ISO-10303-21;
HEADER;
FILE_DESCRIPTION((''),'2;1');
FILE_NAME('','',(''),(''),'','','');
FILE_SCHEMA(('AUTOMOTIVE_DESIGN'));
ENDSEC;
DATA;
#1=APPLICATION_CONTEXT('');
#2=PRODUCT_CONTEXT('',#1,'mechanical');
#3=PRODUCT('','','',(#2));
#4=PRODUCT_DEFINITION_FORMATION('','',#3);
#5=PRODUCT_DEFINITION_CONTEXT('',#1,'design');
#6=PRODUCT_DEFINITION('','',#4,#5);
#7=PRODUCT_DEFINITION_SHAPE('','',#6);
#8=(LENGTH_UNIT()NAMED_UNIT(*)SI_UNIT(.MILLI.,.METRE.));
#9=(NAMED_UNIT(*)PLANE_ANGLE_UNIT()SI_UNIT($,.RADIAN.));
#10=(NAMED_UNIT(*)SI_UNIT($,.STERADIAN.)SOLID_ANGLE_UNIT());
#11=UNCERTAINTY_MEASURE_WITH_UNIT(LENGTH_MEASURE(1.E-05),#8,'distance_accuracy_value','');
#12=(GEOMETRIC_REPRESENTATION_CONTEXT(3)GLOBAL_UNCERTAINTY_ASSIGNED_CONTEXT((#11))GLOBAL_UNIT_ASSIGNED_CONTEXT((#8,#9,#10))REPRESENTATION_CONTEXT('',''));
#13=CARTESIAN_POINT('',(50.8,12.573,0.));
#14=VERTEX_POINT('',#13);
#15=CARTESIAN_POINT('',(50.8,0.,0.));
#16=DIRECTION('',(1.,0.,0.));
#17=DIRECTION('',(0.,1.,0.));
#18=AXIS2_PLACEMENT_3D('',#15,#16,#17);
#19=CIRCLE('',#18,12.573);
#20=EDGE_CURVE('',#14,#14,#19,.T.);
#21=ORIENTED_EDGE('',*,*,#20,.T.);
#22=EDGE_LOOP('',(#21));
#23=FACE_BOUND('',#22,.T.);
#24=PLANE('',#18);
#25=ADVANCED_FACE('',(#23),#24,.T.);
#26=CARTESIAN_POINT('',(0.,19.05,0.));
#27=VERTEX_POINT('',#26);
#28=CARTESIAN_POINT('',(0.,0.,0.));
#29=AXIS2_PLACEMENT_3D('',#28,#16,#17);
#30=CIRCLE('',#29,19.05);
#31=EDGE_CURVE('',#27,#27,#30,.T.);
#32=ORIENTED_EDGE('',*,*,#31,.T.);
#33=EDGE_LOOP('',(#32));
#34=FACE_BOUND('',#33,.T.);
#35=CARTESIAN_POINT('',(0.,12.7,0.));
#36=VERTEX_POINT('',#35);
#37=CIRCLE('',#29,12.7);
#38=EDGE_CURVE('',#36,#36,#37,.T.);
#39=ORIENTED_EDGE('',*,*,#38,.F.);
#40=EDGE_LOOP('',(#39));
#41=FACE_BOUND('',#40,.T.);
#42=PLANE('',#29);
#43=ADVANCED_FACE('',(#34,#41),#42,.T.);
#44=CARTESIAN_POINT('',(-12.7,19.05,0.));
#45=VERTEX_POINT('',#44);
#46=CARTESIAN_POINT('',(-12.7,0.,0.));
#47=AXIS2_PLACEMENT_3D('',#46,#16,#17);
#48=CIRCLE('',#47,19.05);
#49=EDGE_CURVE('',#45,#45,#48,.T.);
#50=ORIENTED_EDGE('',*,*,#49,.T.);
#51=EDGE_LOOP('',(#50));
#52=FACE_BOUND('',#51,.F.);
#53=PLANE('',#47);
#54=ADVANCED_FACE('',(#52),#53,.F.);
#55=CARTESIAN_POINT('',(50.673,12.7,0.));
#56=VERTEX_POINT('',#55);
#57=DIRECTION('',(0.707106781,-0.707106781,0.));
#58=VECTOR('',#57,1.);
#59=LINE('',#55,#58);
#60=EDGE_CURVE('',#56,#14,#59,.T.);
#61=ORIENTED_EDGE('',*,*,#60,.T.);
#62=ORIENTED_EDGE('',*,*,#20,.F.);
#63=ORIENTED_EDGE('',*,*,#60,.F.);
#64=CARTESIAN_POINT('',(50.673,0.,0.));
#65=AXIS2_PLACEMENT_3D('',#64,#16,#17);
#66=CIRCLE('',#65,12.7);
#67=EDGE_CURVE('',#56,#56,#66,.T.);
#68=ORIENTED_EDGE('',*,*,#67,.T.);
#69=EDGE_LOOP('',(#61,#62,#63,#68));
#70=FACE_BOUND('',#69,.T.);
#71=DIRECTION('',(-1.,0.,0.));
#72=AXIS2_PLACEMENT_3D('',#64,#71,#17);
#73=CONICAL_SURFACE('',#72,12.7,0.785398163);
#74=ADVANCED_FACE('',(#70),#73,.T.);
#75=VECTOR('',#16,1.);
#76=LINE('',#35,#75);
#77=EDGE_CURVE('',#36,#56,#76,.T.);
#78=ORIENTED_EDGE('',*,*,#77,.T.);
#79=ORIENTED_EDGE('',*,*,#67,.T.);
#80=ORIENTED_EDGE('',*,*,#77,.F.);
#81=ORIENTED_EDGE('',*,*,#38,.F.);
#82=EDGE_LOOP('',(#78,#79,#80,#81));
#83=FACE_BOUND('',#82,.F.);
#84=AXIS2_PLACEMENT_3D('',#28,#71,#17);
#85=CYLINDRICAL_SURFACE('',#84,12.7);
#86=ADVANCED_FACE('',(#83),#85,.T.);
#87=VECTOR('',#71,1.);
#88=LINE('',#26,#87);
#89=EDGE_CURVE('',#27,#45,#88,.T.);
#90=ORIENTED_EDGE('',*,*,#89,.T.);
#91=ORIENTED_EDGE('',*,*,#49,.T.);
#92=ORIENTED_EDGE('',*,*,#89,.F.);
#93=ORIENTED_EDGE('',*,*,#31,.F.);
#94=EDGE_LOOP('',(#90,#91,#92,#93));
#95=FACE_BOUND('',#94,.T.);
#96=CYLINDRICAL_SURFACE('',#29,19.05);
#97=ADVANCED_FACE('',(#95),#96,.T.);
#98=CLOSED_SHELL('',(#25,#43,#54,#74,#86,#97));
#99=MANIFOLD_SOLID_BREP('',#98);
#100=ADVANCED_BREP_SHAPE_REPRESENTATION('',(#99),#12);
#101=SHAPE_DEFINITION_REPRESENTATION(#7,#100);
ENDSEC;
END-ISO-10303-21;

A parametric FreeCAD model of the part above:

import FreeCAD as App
import Part
import Sketcher
Q = App.Units.Quantity


def edges_at(feature, points):
    """Names of the edges that pass closest to the given points."""
    edges = feature.Shape.Edges
    near = lambda p: min(range(len(edges)), key=lambda i: edges[i].distToShape(Part.Vertex(*p))[0])
    return sorted({f"Edge{near(p) + 1}" for p in points})

doc = App.newDocument("Part")
body = doc.addObject("PartDesign::Body", "Body")

sketch1 = body.newObject("Sketcher::SketchObject", "Sketch")
sketch1.AttachmentSupport = (doc.getObject("YZ_Plane"), [""])
sketch1.MapMode = "FlatFace"
sketch1.addGeometry(Part.Circle(App.Vector(0, 0, 0), App.Vector(0, 0, 1), 19), False)
sketch1.addConstraint([
    Sketcher.Constraint("Coincident", 0, 3, -1, 1),
    Sketcher.Constraint("Diameter", 0, Q("1.5 in")),
])
pad1 = body.newObject("PartDesign::Pad", "Pad")
pad1.Profile = sketch1
pad1.Length = Q("0.5 in")
pad1.Reversed = True

sketch2 = body.newObject("Sketcher::SketchObject", "Sketch001")
sketch2.AttachmentSupport = (doc.getObject("YZ_Plane"), [""])
sketch2.MapMode = "FlatFace"
sketch2.addGeometry(Part.Circle(App.Vector(0, 0, 0), App.Vector(0, 0, 1), 13), False)
sketch2.addConstraint([
    Sketcher.Constraint("Coincident", 0, 3, -1, 1),
    Sketcher.Constraint("Diameter", 0, Q("1 in")),
])
pad2 = body.newObject("PartDesign::Pad", "Pad001")
pad2.Profile = sketch2
pad2.Length = Q("2 in")
doc.recompute()

chamfer = body.newObject("PartDesign::Chamfer", "Chamfer")
chamfer.Base = (pad2, edges_at(pad2, [(50.8, -12.7, 0)]))
chamfer.Size = Q("0.005 in")

doc.recompute()
